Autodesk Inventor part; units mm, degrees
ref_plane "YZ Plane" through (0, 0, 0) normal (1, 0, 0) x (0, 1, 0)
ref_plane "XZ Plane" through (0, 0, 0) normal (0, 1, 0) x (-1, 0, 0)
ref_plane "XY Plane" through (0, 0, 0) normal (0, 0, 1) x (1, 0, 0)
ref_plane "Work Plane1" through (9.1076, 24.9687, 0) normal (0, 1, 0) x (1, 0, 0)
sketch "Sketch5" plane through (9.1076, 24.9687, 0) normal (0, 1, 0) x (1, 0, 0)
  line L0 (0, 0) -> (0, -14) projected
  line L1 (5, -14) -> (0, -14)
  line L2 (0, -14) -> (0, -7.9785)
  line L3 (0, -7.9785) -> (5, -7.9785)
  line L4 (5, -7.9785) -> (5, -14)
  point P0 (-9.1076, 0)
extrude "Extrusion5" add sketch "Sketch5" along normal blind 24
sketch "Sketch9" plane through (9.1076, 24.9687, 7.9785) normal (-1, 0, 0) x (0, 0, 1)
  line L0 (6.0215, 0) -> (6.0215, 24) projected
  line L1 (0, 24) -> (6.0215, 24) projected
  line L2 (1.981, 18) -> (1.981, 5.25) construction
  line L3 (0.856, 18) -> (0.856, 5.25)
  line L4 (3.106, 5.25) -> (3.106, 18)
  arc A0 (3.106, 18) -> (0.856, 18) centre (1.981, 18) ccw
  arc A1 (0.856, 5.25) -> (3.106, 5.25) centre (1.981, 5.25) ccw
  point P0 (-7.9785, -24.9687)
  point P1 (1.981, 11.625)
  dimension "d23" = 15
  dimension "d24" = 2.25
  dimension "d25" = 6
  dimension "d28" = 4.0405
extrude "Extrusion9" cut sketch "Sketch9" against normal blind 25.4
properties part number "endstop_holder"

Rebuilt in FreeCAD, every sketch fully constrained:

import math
import FreeCAD as App
import Part
import Sketcher
from FreeCAD import Vector

doc = App.newDocument("Part")
body = doc.addObject("PartDesign::Body", "Body")

# Sketch on XZ plane
sketch1 = body.newObject("Sketcher::SketchObject", "Sketch")
sketch1.AttachmentSupport = (doc.getObject("XZ_Plane"), [""])
sketch1.MapMode = "FlatFace"
sketch1.AttachmentOffset = App.Placement(Vector(0, 0, -24.9687), App.Rotation())
sketch1.addGeometry(Part.LineSegment(Vector(14, 8, 0), Vector(9, 8, 0)), False)
sketch1.addGeometry(Part.LineSegment(Vector(9, 8, 0), Vector(9, 14, 0)), False)
sketch1.addGeometry(Part.LineSegment(Vector(9, 14, 0), Vector(14, 14, 0)), False)
sketch1.addGeometry(Part.LineSegment(Vector(14, 14, 0), Vector(14, 8, 0)), False)
sketch1.addConstraint(Sketcher.Constraint("Coincident", 0, 2, 1, 1))
sketch1.addConstraint(Sketcher.Constraint("Coincident", 1, 2, 2, 1))
sketch1.addConstraint(Sketcher.Constraint("Coincident", 2, 2, 3, 1))
sketch1.addConstraint(Sketcher.Constraint("Coincident", 3, 2, 0, 1))
sketch1.addConstraint(Sketcher.Constraint("Horizontal", 0))
sketch1.addConstraint(Sketcher.Constraint("Vertical", 1))
sketch1.addConstraint(Sketcher.Constraint("Horizontal", 2))
sketch1.addConstraint(Sketcher.Constraint("Vertical", 3))
sketch1.addConstraint(Sketcher.Constraint("DistanceX", 0, 2, 0, 1, 5.0))
sketch1.addConstraint(Sketcher.Constraint("DistanceY", -1, 1, 1, 2, 14.0))
sketch1.addConstraint(Sketcher.Constraint("DistanceY", 1, 1, 1, 2, 6.0215))
sketch1.addConstraint(Sketcher.Constraint("DistanceX", -1, 1, 0, 2, 9.1076))
pad1 = body.newObject("PartDesign::Pad", "Pad")
pad1.Profile = sketch1
pad1.Length = 24
pad1.Reversed = True

# Sketch on YZ plane
sketch2 = body.newObject("Sketcher::SketchObject", "Sketch001")
sketch2.AttachmentSupport = (doc.getObject("YZ_Plane"), [""])
sketch2.MapMode = "FlatFace"
sketch2.AttachmentOffset = App.Placement(Vector(0, 0, 9.1076), App.Rotation())
sketch2.addGeometry(Part.ArcOfCircle(Part.Circle(Vector(43, 10, 0), Vector(0, 0, 1), 1.1), math.radians(-90), math.radians(90)), False)
sketch2.addGeometry(Part.LineSegment(Vector(43, 8.8, 0), Vector(30.2, 8.8, 0)), False)
sketch2.addGeometry(Part.ArcOfCircle(Part.Circle(Vector(30.2, 10, 0), Vector(0, 0, 1), 1.1), math.radians(90), math.radians(270)), False)
sketch2.addGeometry(Part.LineSegment(Vector(30.2, 11.1, 0), Vector(43, 11.1, 0)), False)
sketch2.addConstraint(Sketcher.Constraint("Tangent", 0, 1, 1, 1))
sketch2.addConstraint(Sketcher.Constraint("Tangent", 1, 2, 2, 2))
sketch2.addConstraint(Sketcher.Constraint("Tangent", 2, 1, 3, 1))
sketch2.addConstraint(Sketcher.Constraint("Tangent", 3, 2, 0, 2))
sketch2.addConstraint(Sketcher.Constraint("Horizontal", 1))
sketch2.addConstraint(Sketcher.Constraint("Horizontal", 3))
sketch2.addConstraint(Sketcher.Constraint("Radius", 0, 1.125))
sketch2.addConstraint(Sketcher.Constraint("DistanceX", 1, 2, 1, 1, 12.75))
sketch2.addConstraint(Sketcher.Constraint("DistanceX", -1, 1, 0, 3, 42.9687))
sketch2.addConstraint(Sketcher.Constraint("DistanceY", -1, 1, 0, 3, 9.9595))
pocket1 = body.newObject("PartDesign::Pocket", "Pocket")
pocket1.Profile = sketch2
pocket1.Length = 25.4
pocket1.Reversed = True

doc.recompute()
